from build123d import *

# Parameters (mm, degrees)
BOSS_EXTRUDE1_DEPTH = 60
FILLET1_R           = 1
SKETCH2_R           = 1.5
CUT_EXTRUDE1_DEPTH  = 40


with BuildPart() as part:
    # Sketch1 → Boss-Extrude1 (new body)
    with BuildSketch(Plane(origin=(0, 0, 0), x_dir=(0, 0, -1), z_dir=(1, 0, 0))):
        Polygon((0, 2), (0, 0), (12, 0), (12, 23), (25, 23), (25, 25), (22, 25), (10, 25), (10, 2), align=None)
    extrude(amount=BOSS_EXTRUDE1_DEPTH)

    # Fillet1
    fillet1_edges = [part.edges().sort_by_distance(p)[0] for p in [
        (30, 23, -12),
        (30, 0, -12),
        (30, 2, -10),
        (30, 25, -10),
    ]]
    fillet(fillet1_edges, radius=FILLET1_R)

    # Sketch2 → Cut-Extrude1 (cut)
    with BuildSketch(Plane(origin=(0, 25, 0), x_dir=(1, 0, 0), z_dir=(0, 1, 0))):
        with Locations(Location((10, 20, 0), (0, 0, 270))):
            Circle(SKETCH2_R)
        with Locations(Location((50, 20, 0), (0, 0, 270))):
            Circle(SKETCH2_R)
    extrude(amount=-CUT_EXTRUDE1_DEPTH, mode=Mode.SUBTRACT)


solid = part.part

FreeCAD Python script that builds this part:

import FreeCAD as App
import Part
import Sketcher

V = App.Vector


def edges_at(feature, points):
    """Names of the edges that pass closest to the given points."""
    edges = feature.Shape.Edges
    near = lambda p: min(range(len(edges)), key=lambda i: edges[i].distToShape(Part.Vertex(*p))[0])
    return sorted({f"Edge{near(p) + 1}" for p in points})

doc = App.newDocument("Part")
body = doc.addObject("PartDesign::Body", "Body")

sketch1 = body.newObject("Sketcher::SketchObject", "Sketch")
sketch1.AttachmentSupport = (doc.getObject("YZ_Plane"), [""])
sketch1.MapMode = "FlatFace"
sketch1.addGeometry([
    Part.LineSegment(V(2, 0, 0), V(0, 0, 0)),
    Part.LineSegment(V(0, 0, 0), V(0, -12, 0)),
    Part.LineSegment(V(0, -12, 0), V(23, -12, 0)),
    Part.LineSegment(V(23, -12, 0), V(23, -25, 0)),
    Part.LineSegment(V(23, -25, 0), V(25, -25, 0)),
    Part.LineSegment(V(25, -25, 0), V(25, -10, 0)),
    Part.LineSegment(V(25, -10, 0), V(2, -10, 0)),
    Part.LineSegment(V(2, -10, 0), V(2, 0, 0)),
], False)
sketch1.addConstraint([
    Sketcher.Constraint("Coincident", 0, 2, 1, 1),
    Sketcher.Constraint("Coincident", 1, 2, 2, 1),
    Sketcher.Constraint("Coincident", 2, 2, 3, 1),
    Sketcher.Constraint("Coincident", 3, 2, 4, 1),
    Sketcher.Constraint("Coincident", 4, 2, 5, 1),
    Sketcher.Constraint("Coincident", 5, 2, 6, 1),
    Sketcher.Constraint("Coincident", 6, 2, 7, 1),
    Sketcher.Constraint("Coincident", 7, 2, 0, 1),
    Sketcher.Constraint("Horizontal", 0),
    Sketcher.Constraint("Vertical", 1),
    Sketcher.Constraint("Horizontal", 2),
    Sketcher.Constraint("Vertical", 3),
    Sketcher.Constraint("Horizontal", 4),
    Sketcher.Constraint("Vertical", 5),
    Sketcher.Constraint("Horizontal", 6),
    Sketcher.Constraint("Vertical", 7),
    Sketcher.Constraint("Coincident", 0, 2, -1, 1),
    Sketcher.Constraint("Equal", 0, 4),
    Sketcher.Constraint("DistanceX", 0, 2, 0, 1, 2.0),
    Sketcher.Constraint("DistanceX", 2, 1, 2, 2, 23.0),
    Sketcher.Constraint("DistanceY", 1, 2, 1, 1, 12.0),
    Sketcher.Constraint("DistanceY", 3, 2, 3, 1, 13.0),
    Sketcher.Constraint("DistanceY", 5, 1, 5, 2, 15.0),
])
pad1 = body.newObject("PartDesign::Pad", "Pad")
pad1.Profile = sketch1
pad1.Length = 60
doc.recompute()

fillet = body.newObject("PartDesign::Fillet", "Fillet")
fillet.Base = (pad1, edges_at(pad1, [
    (30, 23, -12),
    (30, 0, -12),
    (30, 2, -10),
    (30, 25, -10),
]))
fillet.Radius = 1

sketch2 = body.newObject("Sketcher::SketchObject", "Sketch001")
sketch2.AttachmentSupport = (doc.getObject("XZ_Plane"), [""])
sketch2.MapMode = "FlatFace"
sketch2.AttachmentOffset = App.Placement(V(0, 0, -25), App.Rotation())
sketch2.addGeometry([
    Part.Circle(V(10, -20, 0), V(0, 0, 1), 1.5),
    Part.Circle(V(50, -20, 0), V(0, 0, 1), 1.5),
], False)
sketch2.addConstraint([
    Sketcher.Constraint("Equal", 0, 1),
    Sketcher.Constraint("Horizontal", 0, 3, 1, 3),
    Sketcher.Constraint("Diameter", 0, 3.0),
    Sketcher.Constraint("DistanceX", -1, 1, 0, 3, 10.0),
    Sketcher.Constraint("DistanceY", 0, 3, -1, 1, 20.0),
    Sketcher.Constraint("DistanceX", -1, 1, 1, 3, 50.0),
])
pocket1 = body.newObject("PartDesign::Pocket", "Pocket")
pocket1.Profile = sketch2
pocket1.Length = 40
pocket1.Reversed = True

doc.recompute()
